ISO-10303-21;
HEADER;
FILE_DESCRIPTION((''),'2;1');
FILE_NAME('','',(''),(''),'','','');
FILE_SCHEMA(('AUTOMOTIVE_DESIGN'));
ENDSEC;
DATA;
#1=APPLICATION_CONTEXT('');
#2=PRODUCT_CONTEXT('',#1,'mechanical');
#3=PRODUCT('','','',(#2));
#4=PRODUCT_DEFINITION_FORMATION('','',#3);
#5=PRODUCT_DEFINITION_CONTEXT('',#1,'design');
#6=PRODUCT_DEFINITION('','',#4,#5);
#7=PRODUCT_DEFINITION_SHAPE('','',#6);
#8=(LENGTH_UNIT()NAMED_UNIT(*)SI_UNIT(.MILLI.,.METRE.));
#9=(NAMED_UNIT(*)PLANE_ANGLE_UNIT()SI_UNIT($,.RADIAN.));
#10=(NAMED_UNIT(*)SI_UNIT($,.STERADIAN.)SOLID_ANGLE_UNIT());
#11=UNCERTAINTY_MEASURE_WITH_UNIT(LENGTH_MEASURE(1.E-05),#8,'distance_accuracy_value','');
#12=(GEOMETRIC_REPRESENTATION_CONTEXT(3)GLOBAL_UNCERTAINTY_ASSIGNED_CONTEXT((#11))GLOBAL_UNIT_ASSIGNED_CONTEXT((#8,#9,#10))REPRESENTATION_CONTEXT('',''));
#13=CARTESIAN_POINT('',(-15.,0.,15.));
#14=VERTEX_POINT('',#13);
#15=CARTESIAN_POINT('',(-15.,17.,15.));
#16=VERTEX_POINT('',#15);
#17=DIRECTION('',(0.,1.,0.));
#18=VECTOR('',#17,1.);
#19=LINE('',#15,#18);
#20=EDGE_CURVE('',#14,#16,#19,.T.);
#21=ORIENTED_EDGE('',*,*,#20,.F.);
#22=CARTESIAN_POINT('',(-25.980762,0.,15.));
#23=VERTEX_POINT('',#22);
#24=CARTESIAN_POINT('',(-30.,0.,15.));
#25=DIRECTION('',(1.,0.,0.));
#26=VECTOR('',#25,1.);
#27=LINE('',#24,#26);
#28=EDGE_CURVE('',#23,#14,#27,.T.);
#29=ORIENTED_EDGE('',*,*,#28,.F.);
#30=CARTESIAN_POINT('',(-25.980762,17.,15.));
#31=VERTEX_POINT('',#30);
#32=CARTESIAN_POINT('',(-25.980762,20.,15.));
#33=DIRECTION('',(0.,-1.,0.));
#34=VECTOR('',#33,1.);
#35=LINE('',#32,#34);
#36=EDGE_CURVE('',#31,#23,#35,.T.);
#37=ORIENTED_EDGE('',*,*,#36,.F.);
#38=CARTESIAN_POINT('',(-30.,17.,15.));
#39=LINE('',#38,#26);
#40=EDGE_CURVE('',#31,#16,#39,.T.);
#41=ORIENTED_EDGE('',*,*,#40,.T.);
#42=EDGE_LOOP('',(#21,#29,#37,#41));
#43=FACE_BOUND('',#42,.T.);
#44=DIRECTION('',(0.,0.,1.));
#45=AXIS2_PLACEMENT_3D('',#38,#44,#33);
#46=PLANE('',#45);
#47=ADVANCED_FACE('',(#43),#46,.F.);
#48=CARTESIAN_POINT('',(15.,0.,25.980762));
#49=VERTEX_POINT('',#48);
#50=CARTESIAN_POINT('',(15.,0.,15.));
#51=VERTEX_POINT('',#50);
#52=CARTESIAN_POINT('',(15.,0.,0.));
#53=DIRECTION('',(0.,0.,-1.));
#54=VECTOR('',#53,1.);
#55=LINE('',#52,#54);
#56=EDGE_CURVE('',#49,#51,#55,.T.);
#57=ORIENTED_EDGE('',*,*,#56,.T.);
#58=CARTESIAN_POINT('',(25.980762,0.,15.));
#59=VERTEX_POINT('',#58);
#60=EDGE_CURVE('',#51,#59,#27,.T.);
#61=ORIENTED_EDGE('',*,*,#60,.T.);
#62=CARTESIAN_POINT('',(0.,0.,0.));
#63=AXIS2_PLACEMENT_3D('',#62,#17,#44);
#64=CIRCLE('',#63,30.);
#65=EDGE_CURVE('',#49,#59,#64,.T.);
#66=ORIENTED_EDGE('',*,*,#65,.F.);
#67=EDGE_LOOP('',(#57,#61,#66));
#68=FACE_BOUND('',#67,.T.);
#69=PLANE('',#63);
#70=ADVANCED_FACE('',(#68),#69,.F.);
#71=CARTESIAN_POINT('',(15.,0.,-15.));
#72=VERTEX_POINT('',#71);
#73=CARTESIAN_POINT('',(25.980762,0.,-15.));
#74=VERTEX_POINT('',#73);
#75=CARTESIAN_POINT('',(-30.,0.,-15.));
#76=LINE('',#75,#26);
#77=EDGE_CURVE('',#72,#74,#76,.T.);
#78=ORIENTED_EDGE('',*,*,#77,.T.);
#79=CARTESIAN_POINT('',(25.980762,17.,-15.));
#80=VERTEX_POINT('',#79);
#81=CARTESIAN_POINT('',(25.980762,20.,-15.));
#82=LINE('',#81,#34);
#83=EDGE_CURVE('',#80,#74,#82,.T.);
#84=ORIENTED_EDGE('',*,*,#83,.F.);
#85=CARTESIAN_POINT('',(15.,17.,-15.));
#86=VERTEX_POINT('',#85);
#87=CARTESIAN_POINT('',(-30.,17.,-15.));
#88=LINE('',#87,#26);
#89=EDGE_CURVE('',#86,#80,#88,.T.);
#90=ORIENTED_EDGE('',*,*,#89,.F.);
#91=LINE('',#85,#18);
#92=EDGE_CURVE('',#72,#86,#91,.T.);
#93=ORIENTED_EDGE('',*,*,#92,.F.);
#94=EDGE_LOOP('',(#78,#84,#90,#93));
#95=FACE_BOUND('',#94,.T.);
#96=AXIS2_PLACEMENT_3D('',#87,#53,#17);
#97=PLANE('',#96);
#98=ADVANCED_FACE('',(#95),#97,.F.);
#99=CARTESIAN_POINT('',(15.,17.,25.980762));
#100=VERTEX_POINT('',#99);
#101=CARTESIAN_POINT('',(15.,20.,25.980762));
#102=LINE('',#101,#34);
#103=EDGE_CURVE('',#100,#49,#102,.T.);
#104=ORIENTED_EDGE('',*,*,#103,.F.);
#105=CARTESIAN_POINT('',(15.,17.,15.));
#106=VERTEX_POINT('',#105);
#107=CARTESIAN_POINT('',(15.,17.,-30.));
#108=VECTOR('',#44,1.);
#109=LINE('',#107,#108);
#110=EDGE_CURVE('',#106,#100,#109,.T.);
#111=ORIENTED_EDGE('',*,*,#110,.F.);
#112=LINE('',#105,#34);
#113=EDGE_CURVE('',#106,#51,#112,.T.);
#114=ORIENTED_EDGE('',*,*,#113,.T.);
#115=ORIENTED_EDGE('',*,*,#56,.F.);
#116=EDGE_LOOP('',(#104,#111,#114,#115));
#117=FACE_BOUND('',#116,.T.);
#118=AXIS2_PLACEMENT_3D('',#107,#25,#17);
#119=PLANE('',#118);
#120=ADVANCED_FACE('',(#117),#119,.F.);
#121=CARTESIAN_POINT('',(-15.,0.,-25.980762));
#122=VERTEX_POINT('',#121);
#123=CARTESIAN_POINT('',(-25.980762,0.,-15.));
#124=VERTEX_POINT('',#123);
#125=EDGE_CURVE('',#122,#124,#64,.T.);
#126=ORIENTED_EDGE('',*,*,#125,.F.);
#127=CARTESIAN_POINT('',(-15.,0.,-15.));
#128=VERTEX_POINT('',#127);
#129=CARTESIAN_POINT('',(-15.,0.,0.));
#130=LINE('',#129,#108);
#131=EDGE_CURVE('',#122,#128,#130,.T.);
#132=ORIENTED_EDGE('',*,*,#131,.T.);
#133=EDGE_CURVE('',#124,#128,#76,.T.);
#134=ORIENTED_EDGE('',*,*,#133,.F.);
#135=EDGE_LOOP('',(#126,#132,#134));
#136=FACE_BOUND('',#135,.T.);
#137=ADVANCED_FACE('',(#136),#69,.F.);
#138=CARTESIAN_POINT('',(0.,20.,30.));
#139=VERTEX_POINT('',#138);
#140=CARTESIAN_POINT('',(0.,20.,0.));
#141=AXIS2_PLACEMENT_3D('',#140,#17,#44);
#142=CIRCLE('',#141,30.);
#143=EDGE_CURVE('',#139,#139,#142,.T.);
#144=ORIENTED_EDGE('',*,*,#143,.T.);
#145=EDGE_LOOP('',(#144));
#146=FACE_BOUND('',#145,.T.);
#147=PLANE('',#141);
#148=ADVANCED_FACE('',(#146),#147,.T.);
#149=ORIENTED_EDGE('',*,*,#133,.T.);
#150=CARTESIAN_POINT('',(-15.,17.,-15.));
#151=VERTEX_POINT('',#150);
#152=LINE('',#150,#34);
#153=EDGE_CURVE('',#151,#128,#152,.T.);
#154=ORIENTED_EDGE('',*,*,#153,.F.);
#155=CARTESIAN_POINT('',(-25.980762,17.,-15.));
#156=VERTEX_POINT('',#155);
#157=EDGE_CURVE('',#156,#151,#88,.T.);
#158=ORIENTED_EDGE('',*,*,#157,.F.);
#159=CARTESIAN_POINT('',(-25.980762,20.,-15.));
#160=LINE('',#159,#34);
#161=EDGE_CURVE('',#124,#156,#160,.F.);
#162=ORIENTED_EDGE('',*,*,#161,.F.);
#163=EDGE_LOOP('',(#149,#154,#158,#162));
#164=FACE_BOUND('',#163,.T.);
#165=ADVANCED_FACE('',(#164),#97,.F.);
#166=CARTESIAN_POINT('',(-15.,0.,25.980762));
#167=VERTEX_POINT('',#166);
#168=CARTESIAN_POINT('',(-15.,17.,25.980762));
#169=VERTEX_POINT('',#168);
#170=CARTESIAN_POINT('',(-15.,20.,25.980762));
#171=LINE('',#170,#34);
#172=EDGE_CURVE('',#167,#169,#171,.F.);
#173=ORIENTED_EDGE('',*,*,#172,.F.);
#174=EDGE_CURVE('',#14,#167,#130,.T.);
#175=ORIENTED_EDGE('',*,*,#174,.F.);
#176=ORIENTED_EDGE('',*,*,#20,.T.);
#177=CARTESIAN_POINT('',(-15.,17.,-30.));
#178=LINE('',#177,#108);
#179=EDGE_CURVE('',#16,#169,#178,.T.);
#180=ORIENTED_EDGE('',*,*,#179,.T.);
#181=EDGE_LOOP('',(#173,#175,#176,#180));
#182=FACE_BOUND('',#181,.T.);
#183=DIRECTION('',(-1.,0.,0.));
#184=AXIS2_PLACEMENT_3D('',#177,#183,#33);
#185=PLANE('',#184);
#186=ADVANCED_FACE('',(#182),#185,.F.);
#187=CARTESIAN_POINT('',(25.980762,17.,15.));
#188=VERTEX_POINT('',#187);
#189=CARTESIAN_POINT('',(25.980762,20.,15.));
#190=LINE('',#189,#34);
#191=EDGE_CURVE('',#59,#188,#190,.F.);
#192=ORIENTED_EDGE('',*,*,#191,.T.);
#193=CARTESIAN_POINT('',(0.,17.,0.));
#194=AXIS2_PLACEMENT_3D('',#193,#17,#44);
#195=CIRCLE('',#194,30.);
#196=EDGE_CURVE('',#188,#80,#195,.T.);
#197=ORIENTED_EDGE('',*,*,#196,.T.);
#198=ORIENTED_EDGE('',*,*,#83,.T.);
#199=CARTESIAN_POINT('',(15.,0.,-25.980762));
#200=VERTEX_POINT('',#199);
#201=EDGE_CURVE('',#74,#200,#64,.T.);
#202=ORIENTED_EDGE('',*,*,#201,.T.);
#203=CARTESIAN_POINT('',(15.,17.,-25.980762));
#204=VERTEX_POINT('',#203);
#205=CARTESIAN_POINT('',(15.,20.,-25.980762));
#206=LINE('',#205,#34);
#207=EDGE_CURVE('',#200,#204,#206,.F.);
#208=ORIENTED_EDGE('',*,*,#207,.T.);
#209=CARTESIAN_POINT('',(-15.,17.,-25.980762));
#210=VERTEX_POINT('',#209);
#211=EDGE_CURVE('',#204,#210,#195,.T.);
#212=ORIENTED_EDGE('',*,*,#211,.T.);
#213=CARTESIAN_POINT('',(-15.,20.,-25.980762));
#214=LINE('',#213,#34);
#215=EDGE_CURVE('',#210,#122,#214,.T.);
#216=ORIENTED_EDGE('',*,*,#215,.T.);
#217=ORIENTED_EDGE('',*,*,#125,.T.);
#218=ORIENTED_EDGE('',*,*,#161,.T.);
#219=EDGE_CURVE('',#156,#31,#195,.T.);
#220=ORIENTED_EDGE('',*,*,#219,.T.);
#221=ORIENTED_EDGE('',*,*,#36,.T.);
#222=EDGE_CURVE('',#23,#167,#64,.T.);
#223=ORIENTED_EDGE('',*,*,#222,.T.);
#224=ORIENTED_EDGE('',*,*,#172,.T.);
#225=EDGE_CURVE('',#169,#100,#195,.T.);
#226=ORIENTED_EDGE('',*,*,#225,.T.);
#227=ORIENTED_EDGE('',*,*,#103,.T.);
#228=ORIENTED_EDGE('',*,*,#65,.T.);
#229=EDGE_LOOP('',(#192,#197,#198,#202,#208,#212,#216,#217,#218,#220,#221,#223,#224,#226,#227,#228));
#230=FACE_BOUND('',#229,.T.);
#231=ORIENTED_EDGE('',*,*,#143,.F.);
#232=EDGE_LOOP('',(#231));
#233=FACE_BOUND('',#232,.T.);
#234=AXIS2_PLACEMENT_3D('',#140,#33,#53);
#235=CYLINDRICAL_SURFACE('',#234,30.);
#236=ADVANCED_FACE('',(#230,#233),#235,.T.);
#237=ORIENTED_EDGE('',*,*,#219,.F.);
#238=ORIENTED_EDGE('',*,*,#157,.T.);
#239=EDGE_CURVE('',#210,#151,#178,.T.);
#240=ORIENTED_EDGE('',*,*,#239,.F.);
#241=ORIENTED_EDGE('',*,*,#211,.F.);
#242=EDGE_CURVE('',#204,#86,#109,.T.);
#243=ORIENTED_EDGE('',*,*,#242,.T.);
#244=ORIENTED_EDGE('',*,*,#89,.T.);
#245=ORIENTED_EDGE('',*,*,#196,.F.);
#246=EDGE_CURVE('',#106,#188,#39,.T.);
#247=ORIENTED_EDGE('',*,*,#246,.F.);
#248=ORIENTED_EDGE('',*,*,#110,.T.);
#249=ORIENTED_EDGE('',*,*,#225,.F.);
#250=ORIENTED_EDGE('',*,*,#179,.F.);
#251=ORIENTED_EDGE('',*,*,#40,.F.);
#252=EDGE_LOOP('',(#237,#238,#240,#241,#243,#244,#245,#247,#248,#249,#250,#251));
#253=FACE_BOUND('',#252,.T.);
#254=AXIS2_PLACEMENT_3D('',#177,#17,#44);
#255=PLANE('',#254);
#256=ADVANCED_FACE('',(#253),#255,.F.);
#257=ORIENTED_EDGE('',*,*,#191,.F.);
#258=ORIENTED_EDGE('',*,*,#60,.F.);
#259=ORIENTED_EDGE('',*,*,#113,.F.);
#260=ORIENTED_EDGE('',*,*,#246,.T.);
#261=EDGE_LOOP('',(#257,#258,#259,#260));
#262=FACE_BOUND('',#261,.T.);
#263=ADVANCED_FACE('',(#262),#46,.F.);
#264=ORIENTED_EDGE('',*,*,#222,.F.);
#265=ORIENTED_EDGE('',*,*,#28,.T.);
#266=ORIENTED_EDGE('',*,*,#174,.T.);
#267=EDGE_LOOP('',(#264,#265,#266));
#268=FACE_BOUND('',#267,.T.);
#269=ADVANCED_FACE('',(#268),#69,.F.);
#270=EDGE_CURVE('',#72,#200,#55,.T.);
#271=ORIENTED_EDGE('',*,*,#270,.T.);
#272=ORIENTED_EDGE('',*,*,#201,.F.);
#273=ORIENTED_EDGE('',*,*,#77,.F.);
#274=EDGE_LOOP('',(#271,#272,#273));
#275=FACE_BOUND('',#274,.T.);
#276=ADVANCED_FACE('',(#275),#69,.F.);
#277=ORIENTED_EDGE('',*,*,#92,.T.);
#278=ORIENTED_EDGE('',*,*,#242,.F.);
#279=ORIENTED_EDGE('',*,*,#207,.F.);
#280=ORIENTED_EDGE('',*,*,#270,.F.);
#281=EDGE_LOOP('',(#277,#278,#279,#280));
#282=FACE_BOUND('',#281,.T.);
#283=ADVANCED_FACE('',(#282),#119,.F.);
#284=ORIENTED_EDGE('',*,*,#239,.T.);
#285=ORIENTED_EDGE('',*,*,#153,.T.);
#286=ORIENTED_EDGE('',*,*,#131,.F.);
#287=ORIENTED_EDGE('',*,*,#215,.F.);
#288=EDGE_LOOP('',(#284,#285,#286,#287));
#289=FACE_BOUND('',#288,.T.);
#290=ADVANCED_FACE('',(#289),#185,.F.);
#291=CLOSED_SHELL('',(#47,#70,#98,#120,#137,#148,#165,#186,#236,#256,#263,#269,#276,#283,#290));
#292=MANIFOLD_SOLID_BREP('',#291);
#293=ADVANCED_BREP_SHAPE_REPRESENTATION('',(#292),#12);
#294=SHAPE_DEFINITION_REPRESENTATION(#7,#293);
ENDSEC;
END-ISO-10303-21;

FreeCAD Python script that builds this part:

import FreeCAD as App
import Part
import Sketcher

V = App.Vector

doc = App.newDocument("Part")
body = doc.addObject("PartDesign::Body", "Body")

sketch1 = doc.addObject("Sketcher::SketchObject", "Sketch")
body.addObject(sketch1)
sketch1.AttachmentSupport = (doc.XZ_Plane, [""])
sketch1.MapMode = "FlatFace"
sketch1.addGeometry(Part.Circle(V(0, 0, 0), V(0, 0, 1), 30), False)
sketch1.addConstraint([
    Sketcher.Constraint("Coincident", 0, 3, -1, 1),
    Sketcher.Constraint("Diameter", 0, 60.0),
])
pad1 = doc.addObject("PartDesign::Pad", "Pad")
body.addObject(pad1)
pad1.Profile = sketch1
pad1.Length = 20
pad1.Reversed = True

sketch2 = doc.addObject("Sketcher::SketchObject", "Sketch001")
body.addObject(sketch2)
sketch2.AttachmentSupport = (doc.XY_Plane, [""])
sketch2.MapMode = "FlatFace"
sketch2.addGeometry([
    Part.LineSegment(V(-15, 17, 0), V(-15, 0, 0)),
    Part.LineSegment(V(-15, 0, 0), V(15, 0, 0)),
    Part.LineSegment(V(15, 0, 0), V(15, 17, 0)),
    Part.LineSegment(V(15, 17, 0), V(-15, 17, 0)),
], False)
sketch2.addConstraint([
    Sketcher.Constraint("Coincident", 0, 2, 1, 1),
    Sketcher.Constraint("Coincident", 1, 2, 2, 1),
    Sketcher.Constraint("Coincident", 2, 2, 3, 1),
    Sketcher.Constraint("Coincident", 3, 2, 0, 1),
    Sketcher.Constraint("Vertical", 0),
    Sketcher.Constraint("Horizontal", 1),
    Sketcher.Constraint("Vertical", 2),
    Sketcher.Constraint("Horizontal", 3),
    Sketcher.Constraint("Symmetric", 0, 2, 1, 2, -1, 1),
    Sketcher.Constraint("DistanceX", 1, 1, 1, 2, 30.0),
    Sketcher.Constraint("DistanceY", 0, 2, 0, 1, 17.0),
])
pocket1 = doc.addObject("PartDesign::Pocket", "Pocket")
body.addObject(pocket1)
pocket1.Profile = sketch2
pocket1.Type = "ThroughAll"
pocket1.Midplane = True

sketch3 = doc.addObject("Sketcher::SketchObject", "Sketch002")
body.addObject(sketch3)
sketch3.AttachmentSupport = (doc.YZ_Plane, [""])
sketch3.MapMode = "FlatFace"
sketch3.addGeometry([
    Part.LineSegment(V(17, 15, 0), V(0, 15, 0)),
    Part.LineSegment(V(0, 15, 0), V(0, -15, 0)),
    Part.LineSegment(V(0, -15, 0), V(17, -15, 0)),
    Part.LineSegment(V(17, -15, 0), V(17, 15, 0)),
], False)
sketch3.addConstraint([
    Sketcher.Constraint("Coincident", 0, 2, 1, 1),
    Sketcher.Constraint("Coincident", 1, 2, 2, 1),
    Sketcher.Constraint("Coincident", 2, 2, 3, 1),
    Sketcher.Constraint("Coincident", 3, 2, 0, 1),
    Sketcher.Constraint("Horizontal", 0),
    Sketcher.Constraint("Vertical", 1),
    Sketcher.Constraint("Horizontal", 2),
    Sketcher.Constraint("Vertical", 3),
    Sketcher.Constraint("Symmetric", 0, 2, 1, 2, -1, 1),
    Sketcher.Constraint("DistanceX", 0, 2, 0, 1, 17.0),
    Sketcher.Constraint("DistanceY", 1, 2, 1, 1, 30.0),
])
pocket2 = doc.addObject("PartDesign::Pocket", "Pocket001")
body.addObject(pocket2)
pocket2.Profile = sketch3
pocket2.Type = "ThroughAll"
pocket2.Midplane = True

doc.recompute()
